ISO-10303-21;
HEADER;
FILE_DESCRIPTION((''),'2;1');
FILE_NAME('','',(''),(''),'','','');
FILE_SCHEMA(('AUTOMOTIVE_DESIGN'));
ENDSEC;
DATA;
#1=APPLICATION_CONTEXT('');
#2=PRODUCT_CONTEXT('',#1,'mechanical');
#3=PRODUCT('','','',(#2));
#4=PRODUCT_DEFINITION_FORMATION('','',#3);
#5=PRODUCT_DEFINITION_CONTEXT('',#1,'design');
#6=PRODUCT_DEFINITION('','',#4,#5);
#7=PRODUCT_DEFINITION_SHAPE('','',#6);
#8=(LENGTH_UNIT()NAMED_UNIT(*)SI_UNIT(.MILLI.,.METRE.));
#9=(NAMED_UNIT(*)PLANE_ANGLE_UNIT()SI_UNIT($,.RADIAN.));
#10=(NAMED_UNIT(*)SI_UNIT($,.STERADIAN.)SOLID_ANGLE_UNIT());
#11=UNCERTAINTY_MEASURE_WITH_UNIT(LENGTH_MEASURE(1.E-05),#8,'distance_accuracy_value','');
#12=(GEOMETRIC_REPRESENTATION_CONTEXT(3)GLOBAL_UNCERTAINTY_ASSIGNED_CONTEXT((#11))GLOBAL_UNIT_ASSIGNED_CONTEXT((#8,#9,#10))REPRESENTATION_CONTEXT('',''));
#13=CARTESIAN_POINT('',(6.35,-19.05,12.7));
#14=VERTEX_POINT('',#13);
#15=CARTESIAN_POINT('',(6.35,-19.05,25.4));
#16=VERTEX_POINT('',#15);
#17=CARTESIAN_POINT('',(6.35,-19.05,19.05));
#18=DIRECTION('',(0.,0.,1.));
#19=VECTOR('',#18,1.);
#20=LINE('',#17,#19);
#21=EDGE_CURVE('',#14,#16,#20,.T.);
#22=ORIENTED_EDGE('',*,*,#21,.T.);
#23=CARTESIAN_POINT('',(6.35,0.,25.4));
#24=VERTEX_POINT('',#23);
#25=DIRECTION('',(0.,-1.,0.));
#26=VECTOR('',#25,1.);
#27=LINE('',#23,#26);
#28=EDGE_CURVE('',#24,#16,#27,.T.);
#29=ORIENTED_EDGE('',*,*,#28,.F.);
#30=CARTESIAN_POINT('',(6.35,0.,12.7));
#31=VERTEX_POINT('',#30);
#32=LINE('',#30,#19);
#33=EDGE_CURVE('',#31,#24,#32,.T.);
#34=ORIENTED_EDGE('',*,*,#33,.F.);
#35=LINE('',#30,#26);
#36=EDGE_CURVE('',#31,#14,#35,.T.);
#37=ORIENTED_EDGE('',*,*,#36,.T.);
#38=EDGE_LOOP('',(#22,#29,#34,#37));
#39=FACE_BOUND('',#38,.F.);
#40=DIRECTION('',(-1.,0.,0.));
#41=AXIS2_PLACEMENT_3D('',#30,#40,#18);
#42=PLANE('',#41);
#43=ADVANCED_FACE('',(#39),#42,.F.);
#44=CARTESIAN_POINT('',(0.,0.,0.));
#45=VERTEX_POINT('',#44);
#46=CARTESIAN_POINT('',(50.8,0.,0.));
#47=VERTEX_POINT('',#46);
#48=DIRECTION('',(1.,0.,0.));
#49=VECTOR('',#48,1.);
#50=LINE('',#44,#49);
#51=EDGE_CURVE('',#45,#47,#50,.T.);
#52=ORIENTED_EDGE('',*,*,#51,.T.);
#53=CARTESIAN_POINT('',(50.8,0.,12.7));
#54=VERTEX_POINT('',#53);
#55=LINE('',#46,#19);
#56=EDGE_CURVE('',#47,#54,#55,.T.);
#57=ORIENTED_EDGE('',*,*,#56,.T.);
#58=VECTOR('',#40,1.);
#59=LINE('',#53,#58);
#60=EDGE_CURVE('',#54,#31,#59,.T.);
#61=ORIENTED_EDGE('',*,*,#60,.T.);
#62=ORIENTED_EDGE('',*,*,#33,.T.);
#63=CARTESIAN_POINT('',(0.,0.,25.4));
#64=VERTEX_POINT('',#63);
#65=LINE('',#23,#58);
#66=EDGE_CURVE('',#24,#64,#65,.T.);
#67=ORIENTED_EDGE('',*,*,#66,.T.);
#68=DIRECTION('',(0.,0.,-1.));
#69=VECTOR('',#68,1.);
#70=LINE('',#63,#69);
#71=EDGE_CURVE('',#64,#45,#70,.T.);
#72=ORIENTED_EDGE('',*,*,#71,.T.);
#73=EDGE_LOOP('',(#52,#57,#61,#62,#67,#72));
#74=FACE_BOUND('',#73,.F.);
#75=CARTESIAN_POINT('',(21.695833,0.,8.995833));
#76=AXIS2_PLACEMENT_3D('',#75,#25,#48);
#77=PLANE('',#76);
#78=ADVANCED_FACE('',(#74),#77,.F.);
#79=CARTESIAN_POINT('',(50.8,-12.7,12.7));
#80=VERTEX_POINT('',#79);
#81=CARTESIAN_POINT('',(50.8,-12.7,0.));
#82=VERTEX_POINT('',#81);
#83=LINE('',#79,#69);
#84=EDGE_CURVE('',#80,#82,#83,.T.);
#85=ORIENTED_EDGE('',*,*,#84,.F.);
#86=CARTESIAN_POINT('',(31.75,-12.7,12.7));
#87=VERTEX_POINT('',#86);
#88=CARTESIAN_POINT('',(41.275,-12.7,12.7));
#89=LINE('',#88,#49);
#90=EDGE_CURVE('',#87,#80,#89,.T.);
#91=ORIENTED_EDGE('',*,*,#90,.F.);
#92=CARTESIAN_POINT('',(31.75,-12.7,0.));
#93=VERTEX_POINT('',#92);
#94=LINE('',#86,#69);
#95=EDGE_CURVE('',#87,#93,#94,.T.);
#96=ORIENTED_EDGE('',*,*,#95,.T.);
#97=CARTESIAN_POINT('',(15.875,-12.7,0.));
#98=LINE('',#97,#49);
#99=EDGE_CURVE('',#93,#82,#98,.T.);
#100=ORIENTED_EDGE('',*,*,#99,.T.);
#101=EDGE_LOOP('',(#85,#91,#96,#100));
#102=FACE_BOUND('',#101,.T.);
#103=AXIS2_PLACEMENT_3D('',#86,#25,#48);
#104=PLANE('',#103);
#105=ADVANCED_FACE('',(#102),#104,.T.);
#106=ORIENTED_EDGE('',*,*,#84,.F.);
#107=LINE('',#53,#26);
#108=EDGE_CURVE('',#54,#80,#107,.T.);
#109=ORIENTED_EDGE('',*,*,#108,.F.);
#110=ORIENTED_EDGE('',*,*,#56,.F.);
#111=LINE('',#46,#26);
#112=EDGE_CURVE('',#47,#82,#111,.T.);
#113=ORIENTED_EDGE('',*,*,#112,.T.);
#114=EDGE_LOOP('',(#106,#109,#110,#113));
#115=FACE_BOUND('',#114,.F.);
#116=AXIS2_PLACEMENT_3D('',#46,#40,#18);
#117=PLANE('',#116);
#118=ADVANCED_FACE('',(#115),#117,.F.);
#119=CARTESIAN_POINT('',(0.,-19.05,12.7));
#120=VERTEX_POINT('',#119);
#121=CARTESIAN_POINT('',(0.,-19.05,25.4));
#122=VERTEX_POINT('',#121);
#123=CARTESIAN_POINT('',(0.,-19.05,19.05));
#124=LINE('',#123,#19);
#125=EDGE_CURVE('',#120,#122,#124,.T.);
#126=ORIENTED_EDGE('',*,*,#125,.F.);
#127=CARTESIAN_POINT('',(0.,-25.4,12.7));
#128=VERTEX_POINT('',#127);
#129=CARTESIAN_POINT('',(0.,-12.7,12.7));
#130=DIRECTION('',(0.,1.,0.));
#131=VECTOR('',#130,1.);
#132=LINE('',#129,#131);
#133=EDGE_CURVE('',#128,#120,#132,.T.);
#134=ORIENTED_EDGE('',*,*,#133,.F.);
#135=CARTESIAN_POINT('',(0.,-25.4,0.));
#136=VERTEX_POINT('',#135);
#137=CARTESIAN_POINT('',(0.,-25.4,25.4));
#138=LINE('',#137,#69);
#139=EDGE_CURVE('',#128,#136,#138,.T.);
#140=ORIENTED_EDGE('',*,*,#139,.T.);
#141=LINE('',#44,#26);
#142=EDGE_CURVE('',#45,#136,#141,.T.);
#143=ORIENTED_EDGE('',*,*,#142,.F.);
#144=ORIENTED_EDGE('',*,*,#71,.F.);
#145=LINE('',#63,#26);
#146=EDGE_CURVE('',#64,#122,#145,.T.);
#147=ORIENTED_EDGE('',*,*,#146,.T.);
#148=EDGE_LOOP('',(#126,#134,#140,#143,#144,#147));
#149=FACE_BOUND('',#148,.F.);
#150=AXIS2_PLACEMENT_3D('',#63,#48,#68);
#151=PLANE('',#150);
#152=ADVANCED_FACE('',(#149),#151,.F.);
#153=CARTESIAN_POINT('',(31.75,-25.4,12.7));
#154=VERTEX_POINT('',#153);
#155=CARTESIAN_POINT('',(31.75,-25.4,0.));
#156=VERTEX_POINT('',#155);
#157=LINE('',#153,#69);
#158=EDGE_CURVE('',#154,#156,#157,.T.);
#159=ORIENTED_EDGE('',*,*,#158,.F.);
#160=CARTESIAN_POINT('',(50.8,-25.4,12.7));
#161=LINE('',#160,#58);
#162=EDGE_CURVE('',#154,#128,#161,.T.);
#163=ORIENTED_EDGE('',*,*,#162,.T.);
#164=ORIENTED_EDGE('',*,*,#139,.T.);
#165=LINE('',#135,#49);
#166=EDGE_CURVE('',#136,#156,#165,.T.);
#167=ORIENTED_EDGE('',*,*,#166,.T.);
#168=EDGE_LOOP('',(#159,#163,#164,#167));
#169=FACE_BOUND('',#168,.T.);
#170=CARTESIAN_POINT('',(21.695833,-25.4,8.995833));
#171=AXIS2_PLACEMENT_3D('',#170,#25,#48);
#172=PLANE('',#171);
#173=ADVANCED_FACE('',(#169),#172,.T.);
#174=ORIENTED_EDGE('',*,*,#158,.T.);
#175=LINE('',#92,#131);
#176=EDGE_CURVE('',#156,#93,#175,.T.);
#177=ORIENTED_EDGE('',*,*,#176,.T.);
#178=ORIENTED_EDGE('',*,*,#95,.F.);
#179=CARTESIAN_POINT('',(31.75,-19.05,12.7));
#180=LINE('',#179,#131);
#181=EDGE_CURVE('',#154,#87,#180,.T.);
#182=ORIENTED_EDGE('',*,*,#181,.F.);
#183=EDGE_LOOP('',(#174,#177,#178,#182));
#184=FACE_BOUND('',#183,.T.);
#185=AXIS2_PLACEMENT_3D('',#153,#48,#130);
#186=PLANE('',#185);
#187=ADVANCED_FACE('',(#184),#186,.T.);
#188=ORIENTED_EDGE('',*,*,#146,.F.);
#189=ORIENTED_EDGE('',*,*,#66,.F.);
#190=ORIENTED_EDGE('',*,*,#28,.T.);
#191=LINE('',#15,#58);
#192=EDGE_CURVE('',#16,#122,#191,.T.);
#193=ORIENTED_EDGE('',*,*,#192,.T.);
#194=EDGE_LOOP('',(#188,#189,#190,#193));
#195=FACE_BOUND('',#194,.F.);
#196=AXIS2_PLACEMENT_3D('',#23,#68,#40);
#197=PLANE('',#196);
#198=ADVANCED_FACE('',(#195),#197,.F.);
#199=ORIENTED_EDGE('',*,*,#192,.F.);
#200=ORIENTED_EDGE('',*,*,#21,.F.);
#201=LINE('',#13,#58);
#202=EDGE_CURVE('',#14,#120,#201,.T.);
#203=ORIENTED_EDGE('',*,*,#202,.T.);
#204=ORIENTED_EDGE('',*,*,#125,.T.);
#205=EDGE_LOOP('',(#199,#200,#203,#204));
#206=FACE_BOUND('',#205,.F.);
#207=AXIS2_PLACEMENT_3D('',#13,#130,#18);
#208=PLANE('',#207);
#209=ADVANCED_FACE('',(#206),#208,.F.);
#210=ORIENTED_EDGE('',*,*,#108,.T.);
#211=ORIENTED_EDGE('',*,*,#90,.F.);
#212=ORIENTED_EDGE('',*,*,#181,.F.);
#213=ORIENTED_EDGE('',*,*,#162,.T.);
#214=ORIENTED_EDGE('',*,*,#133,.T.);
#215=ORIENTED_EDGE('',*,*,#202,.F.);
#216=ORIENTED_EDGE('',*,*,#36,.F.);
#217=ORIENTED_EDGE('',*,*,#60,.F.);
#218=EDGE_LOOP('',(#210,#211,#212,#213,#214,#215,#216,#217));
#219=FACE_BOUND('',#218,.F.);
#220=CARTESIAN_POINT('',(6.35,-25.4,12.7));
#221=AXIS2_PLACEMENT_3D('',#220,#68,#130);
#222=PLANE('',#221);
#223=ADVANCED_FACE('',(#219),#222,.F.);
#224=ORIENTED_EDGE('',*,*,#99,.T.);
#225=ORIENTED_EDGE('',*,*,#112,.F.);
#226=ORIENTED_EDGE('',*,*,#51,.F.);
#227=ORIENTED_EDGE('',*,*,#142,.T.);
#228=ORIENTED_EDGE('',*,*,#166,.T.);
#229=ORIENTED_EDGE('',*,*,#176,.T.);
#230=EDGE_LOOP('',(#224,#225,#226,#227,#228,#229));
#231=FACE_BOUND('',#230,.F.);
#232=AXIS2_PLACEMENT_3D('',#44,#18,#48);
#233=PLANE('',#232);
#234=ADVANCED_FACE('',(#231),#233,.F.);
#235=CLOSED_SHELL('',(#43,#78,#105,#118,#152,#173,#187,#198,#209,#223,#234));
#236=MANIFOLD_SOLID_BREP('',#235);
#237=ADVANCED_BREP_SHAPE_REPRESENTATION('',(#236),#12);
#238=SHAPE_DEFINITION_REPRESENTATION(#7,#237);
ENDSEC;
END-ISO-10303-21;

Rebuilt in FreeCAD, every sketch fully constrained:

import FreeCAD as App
import Part
import Sketcher
Q = App.Units.Quantity


def add_polygon(sketch, points):
    """Adds a closed chain of lines whose ends are joined by coincident constraints."""
    first, n = sketch.GeometryCount, len(points)
    for a, b in zip(points, points[1:] + points[:1]):
        sketch.addGeometry(Part.LineSegment(App.Vector(*a, 0), App.Vector(*b, 0)), False)
    for i in range(n):
        sketch.addConstraint(Sketcher.Constraint("Coincident", first + i, 2, first + (i + 1) % n, 1))

doc = App.newDocument("Part")
params = doc.addObject("Spreadsheet::Sheet", "Params")
for row, (alias, value) in enumerate([
    ("sketch1_width", "2 in"),
    ("sketch1_height", "1 in"),
    ("sketch1_width2", "1.75 in"),
    ("pad1_length", "1 in"),
    ("sketch2_height", "0.5 in"),
    ("sketch2_width", "0.25 in"),
    ("sketch3_height", "0.5 in"),
    ("sketch3_width", "0.75 in"),
], start=1):
    params.set(f"A{row}", alias)
    params.set(f"B{row}", "=" + value)
    params.setAlias(f"B{row}", alias)

body = doc.addObject("PartDesign::Body", "Body")

# Sketch on XZ plane
sketch1 = body.newObject("Sketcher::SketchObject", "Sketch")
sketch1.AttachmentSupport = (doc.getObject("XZ_Plane"), [""])
sketch1.MapMode = "FlatFace"
add_polygon(sketch1, [(0, 25), (0, 0), (51, 0), (51, 13), (6, 13), (6, 25)])  # lines 0-5
sketch1.addConstraint([
    Sketcher.Constraint("Vertical", 0),
    Sketcher.Constraint("Horizontal", 1),
    Sketcher.Constraint("Vertical", 2),
    Sketcher.Constraint("Horizontal", 3),
    Sketcher.Constraint("Vertical", 4),
    Sketcher.Constraint("Horizontal", 5),
    Sketcher.Constraint("Coincident", 0, 2, -1, 1),
    Sketcher.Constraint("Equal", 2, 4),
    Sketcher.Constraint("DistanceX", 1, 1, 1, 2, Q("2 in")),
    Sketcher.Constraint("DistanceY", 0, 2, 0, 1, Q("1 in")),
    Sketcher.Constraint("DistanceX", 3, 2, 3, 1, Q("1.75 in")),
])
sketch1.setExpression("Constraints[14]", "Params.sketch1_width")
sketch1.setExpression("Constraints[15]", "Params.sketch1_height")
sketch1.setExpression("Constraints[16]", "Params.sketch1_width2")
pad1 = body.newObject("PartDesign::Pad", "Pad")
pad1.Profile = sketch1
pad1.setExpression("Length", "Params.pad1_length")

# Sketch on YZ plane
sketch2 = body.newObject("Sketcher::SketchObject", "Sketch001")
sketch2.AttachmentSupport = (doc.getObject("YZ_Plane"), [""])
sketch2.MapMode = "FlatFace"
sketch2.AttachmentOffset = App.Placement(App.Vector(0, 0, 0.25 * 25.4), App.Rotation())
add_polygon(sketch2, [(-25, 25), (-25, 13), (-19, 13), (-19, 25)])  # lines 0-3
sketch2.addConstraint([
    Sketcher.Constraint("Vertical", 0),
    Sketcher.Constraint("Horizontal", 1),
    Sketcher.Constraint("Vertical", 2),
    Sketcher.Constraint("Horizontal", 3),
    Sketcher.Constraint("DistanceY", 0, 2, 0, 1, Q("0.5 in")),
    Sketcher.Constraint("DistanceX", 0, 2, -1, 1, Q("1 in")),
    Sketcher.Constraint("DistanceY", -1, 1, 2, 2, Q("1 in")),
    Sketcher.Constraint("DistanceX", 1, 1, 1, 2, Q("0.25 in")),
])
sketch2.setExpression("Constraints[8]", "Params.sketch2_height")
sketch2.setExpression("Constraints[11]", "Params.sketch2_width")
pocket1 = body.newObject("PartDesign::Pocket", "Pocket")
pocket1.Profile = sketch2
pocket1.Type = "ThroughAll"

# Sketch on XY plane
sketch3 = body.newObject("Sketcher::SketchObject", "Sketch002")
sketch3.AttachmentSupport = (doc.getObject("XY_Plane"), [""])
sketch3.MapMode = "FlatFace"
sketch3.AttachmentOffset = App.Placement(App.Vector(0, 0, 0.5 * 25.4), App.Rotation())
add_polygon(sketch3, [(32, -13), (32, -25), (51, -25), (51, -13)])  # lines 0-3
sketch3.addConstraint([
    Sketcher.Constraint("Vertical", 0),
    Sketcher.Constraint("Horizontal", 1),
    Sketcher.Constraint("Vertical", 2),
    Sketcher.Constraint("Horizontal", 3),
    Sketcher.Constraint("DistanceY", 0, 2, 0, 1, Q("0.5 in")),
    Sketcher.Constraint("DistanceY", 0, 2, -1, 1, Q("1 in")),
    Sketcher.Constraint("DistanceX", -1, 1, 1, 2, Q("2 in")),
    Sketcher.Constraint("DistanceX", 1, 1, 1, 2, Q("0.75 in")),
])
sketch3.setExpression("Constraints[8]", "Params.sketch3_height")
sketch3.setExpression("Constraints[11]", "Params.sketch3_width")
pocket2 = body.newObject("PartDesign::Pocket", "Pocket001")
pocket2.Profile = sketch3
pocket2.Type = "ThroughAll"

doc.recompute()
